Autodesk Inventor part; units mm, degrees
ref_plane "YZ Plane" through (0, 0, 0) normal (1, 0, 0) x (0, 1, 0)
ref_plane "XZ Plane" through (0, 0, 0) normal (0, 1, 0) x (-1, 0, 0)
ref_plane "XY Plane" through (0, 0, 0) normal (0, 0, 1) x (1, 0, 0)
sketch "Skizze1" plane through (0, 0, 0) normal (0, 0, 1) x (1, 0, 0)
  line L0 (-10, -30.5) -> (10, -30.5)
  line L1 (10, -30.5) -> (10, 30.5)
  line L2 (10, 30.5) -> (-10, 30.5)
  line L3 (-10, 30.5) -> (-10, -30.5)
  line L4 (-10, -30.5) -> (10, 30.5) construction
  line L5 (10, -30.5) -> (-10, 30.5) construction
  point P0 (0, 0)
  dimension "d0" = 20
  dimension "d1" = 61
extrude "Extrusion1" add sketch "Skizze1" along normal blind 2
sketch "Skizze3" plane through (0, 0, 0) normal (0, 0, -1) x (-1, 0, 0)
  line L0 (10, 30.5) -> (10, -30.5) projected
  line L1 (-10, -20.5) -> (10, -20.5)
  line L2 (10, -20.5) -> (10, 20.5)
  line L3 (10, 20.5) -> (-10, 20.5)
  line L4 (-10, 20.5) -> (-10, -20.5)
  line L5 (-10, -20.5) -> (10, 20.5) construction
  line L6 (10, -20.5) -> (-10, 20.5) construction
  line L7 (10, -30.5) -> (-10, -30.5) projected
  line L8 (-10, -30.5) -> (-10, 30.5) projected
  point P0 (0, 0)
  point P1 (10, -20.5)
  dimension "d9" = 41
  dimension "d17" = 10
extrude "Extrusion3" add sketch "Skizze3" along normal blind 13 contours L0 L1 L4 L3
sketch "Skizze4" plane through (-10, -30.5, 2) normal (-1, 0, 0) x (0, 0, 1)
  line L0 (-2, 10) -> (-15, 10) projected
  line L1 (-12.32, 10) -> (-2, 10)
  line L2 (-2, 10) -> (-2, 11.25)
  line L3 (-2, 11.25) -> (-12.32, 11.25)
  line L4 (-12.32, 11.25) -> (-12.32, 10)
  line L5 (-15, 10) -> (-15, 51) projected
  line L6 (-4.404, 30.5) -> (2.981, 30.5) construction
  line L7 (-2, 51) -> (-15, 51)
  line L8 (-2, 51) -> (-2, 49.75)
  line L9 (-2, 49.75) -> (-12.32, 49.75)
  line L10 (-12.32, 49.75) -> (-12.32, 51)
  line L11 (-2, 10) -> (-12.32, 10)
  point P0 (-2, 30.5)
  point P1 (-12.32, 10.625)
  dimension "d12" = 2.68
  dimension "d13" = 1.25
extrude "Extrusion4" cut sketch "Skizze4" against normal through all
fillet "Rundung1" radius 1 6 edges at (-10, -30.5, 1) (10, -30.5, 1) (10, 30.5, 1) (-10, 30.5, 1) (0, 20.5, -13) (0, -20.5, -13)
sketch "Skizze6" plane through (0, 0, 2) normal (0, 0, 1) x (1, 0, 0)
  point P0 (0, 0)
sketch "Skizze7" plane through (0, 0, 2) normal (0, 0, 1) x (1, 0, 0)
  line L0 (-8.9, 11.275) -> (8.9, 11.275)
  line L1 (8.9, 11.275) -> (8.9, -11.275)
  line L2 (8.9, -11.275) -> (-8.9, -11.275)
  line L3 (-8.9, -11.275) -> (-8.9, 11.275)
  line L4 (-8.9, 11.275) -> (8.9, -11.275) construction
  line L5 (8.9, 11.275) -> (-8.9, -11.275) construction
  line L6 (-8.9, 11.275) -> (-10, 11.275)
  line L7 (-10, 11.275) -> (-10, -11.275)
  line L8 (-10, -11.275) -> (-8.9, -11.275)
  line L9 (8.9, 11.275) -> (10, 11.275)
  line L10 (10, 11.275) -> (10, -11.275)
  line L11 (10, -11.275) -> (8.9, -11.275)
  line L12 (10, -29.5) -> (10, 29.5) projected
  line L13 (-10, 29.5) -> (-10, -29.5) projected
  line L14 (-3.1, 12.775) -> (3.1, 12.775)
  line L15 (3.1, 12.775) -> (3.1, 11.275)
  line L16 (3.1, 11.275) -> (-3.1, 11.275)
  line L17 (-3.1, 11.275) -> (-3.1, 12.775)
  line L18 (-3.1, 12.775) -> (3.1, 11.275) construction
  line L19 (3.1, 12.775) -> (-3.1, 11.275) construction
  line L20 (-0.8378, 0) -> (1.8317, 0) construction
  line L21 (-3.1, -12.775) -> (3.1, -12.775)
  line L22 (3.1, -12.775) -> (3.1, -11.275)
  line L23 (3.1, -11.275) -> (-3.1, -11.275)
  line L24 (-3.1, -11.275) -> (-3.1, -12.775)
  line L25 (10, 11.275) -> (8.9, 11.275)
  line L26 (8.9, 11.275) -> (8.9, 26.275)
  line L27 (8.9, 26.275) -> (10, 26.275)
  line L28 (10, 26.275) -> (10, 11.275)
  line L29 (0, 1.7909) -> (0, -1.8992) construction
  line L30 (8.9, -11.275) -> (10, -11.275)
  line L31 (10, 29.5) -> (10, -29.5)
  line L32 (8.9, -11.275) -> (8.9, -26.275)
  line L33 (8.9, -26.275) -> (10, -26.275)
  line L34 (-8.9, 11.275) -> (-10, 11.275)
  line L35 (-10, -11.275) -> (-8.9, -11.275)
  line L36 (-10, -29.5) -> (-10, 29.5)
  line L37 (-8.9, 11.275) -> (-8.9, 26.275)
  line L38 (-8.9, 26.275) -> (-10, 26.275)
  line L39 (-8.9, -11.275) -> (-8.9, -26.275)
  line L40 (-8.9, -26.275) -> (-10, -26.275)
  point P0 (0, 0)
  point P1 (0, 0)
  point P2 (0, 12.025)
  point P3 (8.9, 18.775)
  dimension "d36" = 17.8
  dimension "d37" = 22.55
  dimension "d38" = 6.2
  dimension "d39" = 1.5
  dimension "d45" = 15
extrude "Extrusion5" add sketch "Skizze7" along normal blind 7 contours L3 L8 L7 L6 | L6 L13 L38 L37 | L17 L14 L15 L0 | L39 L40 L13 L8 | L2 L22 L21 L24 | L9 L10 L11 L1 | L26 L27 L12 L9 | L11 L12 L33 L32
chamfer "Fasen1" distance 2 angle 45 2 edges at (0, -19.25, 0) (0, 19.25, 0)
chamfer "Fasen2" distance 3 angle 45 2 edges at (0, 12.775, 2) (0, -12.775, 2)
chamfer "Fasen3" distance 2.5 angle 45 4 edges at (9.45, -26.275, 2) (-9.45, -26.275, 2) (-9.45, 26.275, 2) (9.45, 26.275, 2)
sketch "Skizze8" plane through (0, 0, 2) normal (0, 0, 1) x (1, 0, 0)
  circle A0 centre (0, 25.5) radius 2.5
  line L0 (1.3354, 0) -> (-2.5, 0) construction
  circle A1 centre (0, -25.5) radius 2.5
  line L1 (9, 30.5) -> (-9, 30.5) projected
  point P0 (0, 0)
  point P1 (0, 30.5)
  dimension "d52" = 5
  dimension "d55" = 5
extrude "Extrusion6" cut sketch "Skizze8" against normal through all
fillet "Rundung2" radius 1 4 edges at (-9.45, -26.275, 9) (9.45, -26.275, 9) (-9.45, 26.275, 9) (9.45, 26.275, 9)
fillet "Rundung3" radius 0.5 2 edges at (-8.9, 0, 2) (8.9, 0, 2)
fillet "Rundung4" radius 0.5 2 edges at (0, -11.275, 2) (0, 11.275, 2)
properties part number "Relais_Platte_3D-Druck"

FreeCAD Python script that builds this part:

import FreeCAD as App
import Part
import Sketcher
from FreeCAD import Vector
Q = App.Units.Quantity


def edges_at(feature, points):
    """Names of the edges that pass closest to the given points."""
    edges = feature.Shape.Edges
    near = lambda p: min(range(len(edges)), key=lambda i: edges[i].distToShape(Part.Vertex(*p))[0])
    return sorted({f"Edge{near(p) + 1}" for p in points})

doc = App.newDocument("Part")
body = doc.addObject("PartDesign::Body", "Body")

# Sketch on XY plane
sketch1 = body.newObject("Sketcher::SketchObject", "Sketch")
sketch1.AttachmentSupport = (doc.getObject("XY_Plane"), [""])
sketch1.MapMode = "FlatFace"
sketch1.addGeometry(Part.LineSegment(Vector(-10, 30, 0), Vector(-10, -30, 0)), False)
sketch1.addGeometry(Part.LineSegment(Vector(-10, -30, 0), Vector(10, -30, 0)), False)
sketch1.addGeometry(Part.LineSegment(Vector(10, -30, 0), Vector(10, 30, 0)), False)
sketch1.addGeometry(Part.LineSegment(Vector(10, 30, 0), Vector(-10, 30, 0)), False)
sketch1.addConstraint(Sketcher.Constraint("Coincident", 0, 2, 1, 1))
sketch1.addConstraint(Sketcher.Constraint("Coincident", 1, 2, 2, 1))
sketch1.addConstraint(Sketcher.Constraint("Coincident", 2, 2, 3, 1))
sketch1.addConstraint(Sketcher.Constraint("Coincident", 3, 2, 0, 1))
sketch1.addConstraint(Sketcher.Constraint("Vertical", 0))
sketch1.addConstraint(Sketcher.Constraint("Horizontal", 1))
sketch1.addConstraint(Sketcher.Constraint("Vertical", 2))
sketch1.addConstraint(Sketcher.Constraint("Horizontal", 3))
sketch1.addConstraint(Sketcher.Constraint("Symmetric", 0, 2, 2, 2, -1, 1))
sketch1.addConstraint(Sketcher.Constraint("DistanceX", 1, 1, 1, 2, Q("20 mm")))
sketch1.addConstraint(Sketcher.Constraint("DistanceY", 0, 2, 0, 1, Q("61 mm")))
pad1 = body.newObject("PartDesign::Pad", "Pad")
pad1.Profile = sketch1
pad1.Length = 2

# Sketch on XY plane
sketch2 = body.newObject("Sketcher::SketchObject", "Sketch001")
sketch2.AttachmentSupport = (doc.getObject("XY_Plane"), [""])
sketch2.MapMode = "FlatFace"
sketch2.addGeometry(Part.LineSegment(Vector(-10, -20, 0), Vector(-10, 20, 0)), False)
sketch2.addGeometry(Part.LineSegment(Vector(-10, 20, 0), Vector(10, 20, 0)), False)
sketch2.addGeometry(Part.LineSegment(Vector(10, 20, 0), Vector(10, -20, 0)), False)
sketch2.addGeometry(Part.LineSegment(Vector(10, -20, 0), Vector(-10, -20, 0)), False)
sketch2.addConstraint(Sketcher.Constraint("Coincident", 0, 2, 1, 1))
sketch2.addConstraint(Sketcher.Constraint("Coincident", 1, 2, 2, 1))
sketch2.addConstraint(Sketcher.Constraint("Coincident", 2, 2, 3, 1))
sketch2.addConstraint(Sketcher.Constraint("Coincident", 3, 2, 0, 1))
sketch2.addConstraint(Sketcher.Constraint("Vertical", 0))
sketch2.addConstraint(Sketcher.Constraint("Horizontal", 1))
sketch2.addConstraint(Sketcher.Constraint("Vertical", 2))
sketch2.addConstraint(Sketcher.Constraint("Horizontal", 3))
sketch2.addConstraint(Sketcher.Constraint("Symmetric", 0, 2, 2, 2, -1, 1))
sketch2.addConstraint(Sketcher.Constraint("DistanceY", 0, 1, 0, 2, Q("41 mm")))
sketch2.addConstraint(Sketcher.Constraint("DistanceX", 0, 2, -1, 1, Q("10 mm")))
pad2 = body.newObject("PartDesign::Pad", "Pad001")
pad2.Profile = sketch2
pad2.Length = 13
pad2.Reversed = True

# Sketch on YZ plane
sketch3 = body.newObject("Sketcher::SketchObject", "Sketch002")
sketch3.AttachmentSupport = (doc.getObject("YZ_Plane"), [""])
sketch3.MapMode = "FlatFace"
sketch3.AttachmentOffset = App.Placement(Vector(0, 0, -10), App.Rotation())
sketch3.addGeometry(Part.LineSegment(Vector(20.5, 0, 0), Vector(20.5, -10.3, 0)), False)
sketch3.addGeometry(Part.LineSegment(Vector(20.5, -10.3, 0), Vector(19.2, -10.3, 0)), False)
sketch3.addGeometry(Part.LineSegment(Vector(19.2, -10.3, 0), Vector(19.2, 0, 0)), False)
sketch3.addGeometry(Part.LineSegment(Vector(19.2, 0, 0), Vector(20.5, 0, 0)), False)
sketch3.addGeometry(Part.LineSegment(Vector(-20.5, -10.3, 0), Vector(-20.5, 0, 0)), False)
sketch3.addGeometry(Part.LineSegment(Vector(-20.5, 0, 0), Vector(-19.2, 0, 0)), False)
sketch3.addGeometry(Part.LineSegment(Vector(-19.2, 0, 0), Vector(-19.2, -10.3, 0)), False)
sketch3.addGeometry(Part.LineSegment(Vector(-19.2, -10.3, 0), Vector(-20.5, -10.3, 0)), False)
sketch3.addConstraint(Sketcher.Constraint("Coincident", 0, 2, 1, 1))
sketch3.addConstraint(Sketcher.Constraint("Coincident", 1, 2, 2, 1))
sketch3.addConstraint(Sketcher.Constraint("Coincident", 2, 2, 3, 1))
sketch3.addConstraint(Sketcher.Constraint("Coincident", 3, 2, 0, 1))
sketch3.addConstraint(Sketcher.Constraint("Coincident", 4, 2, 5, 1))
sketch3.addConstraint(Sketcher.Constraint("Coincident", 5, 2, 6, 1))
sketch3.addConstraint(Sketcher.Constraint("Coincident", 6, 2, 7, 1))
sketch3.addConstraint(Sketcher.Constraint("Coincident", 7, 2, 4, 1))
sketch3.addConstraint(Sketcher.Constraint("Vertical", 0))
sketch3.addConstraint(Sketcher.Constraint("Horizontal", 1))
sketch3.addConstraint(Sketcher.Constraint("Vertical", 2))
sketch3.addConstraint(Sketcher.Constraint("Horizontal", 3))
sketch3.addConstraint(Sketcher.Constraint("Vertical", 4))
sketch3.addConstraint(Sketcher.Constraint("Horizontal", 5))
sketch3.addConstraint(Sketcher.Constraint("Vertical", 6))
sketch3.addConstraint(Sketcher.Constraint("Horizontal", 7))
sketch3.addConstraint(Sketcher.Constraint("Symmetric", 3, 2, 4, 2, -1, 1))
sketch3.addConstraint(Sketcher.Constraint("Symmetric", 2, 2, 5, 2, -2))
sketch3.addConstraint(Sketcher.Constraint("Horizontal", 1, 2, 6, 2))
sketch3.addConstraint(Sketcher.Constraint("DistanceX", 1, 2, 1, 1, Q("1.25 mm")))
sketch3.addConstraint(Sketcher.Constraint("DistanceX", 4, 2, 3, 2, Q("41 mm")))
sketch3.addConstraint(Sketcher.Constraint("DistanceY", 0, 2, 0, 1, Q("10.32 mm")))
pocket1 = body.newObject("PartDesign::Pocket", "Pocket")
pocket1.Profile = sketch3
pocket1.Type = "ThroughAll"
pocket1.Reversed = True
doc.recompute()

fillet = body.newObject("PartDesign::Fillet", "Fillet")
fillet.Base = (pocket1, edges_at(pocket1, [
    (-10, -30.5, 1),
    (10, -30.5, 1),
    (10, 30.5, 1),
    (-10, 30.5, 1),
    (0, 20.5, -13),
    (0, -20.5, -13),
]))
fillet.Radius = 1

# Sketch on XY plane
sketch4 = body.newObject("Sketcher::SketchObject", "Sketch003")
sketch4.AttachmentSupport = (doc.getObject("XY_Plane"), [""])
sketch4.MapMode = "FlatFace"
sketch4.AttachmentOffset = App.Placement(Vector(0, 0, 2), App.Rotation())
sketch4.addGeometry(Part.LineSegment(Vector(-8.9, 26.3, 0), Vector(-10, 26.3, 0)), False)
sketch4.addGeometry(Part.LineSegment(Vector(-10, 26.3, 0), Vector(-10, -26.3, 0)), False)
sketch4.addGeometry(Part.LineSegment(Vector(-10, -26.3, 0), Vector(-8.9, -26.3, 0)), False)
sketch4.addGeometry(Part.LineSegment(Vector(-8.9, -26.3, 0), Vector(-8.9, 26.3, 0)), False)
sketch4.addGeometry(Part.LineSegment(Vector(-3.1, 12.8, 0), Vector(-3.1, 11.3, 0)), False)
sketch4.addGeometry(Part.LineSegment(Vector(-3.1, 11.3, 0), Vector(3.1, 11.3, 0)), False)
sketch4.addGeometry(Part.LineSegment(Vector(3.1, 11.3, 0), Vector(3.1, 12.8, 0)), False)
sketch4.addGeometry(Part.LineSegment(Vector(3.1, 12.8, 0), Vector(-3.1, 12.8, 0)), False)
sketch4.addGeometry(Part.LineSegment(Vector(3.1, -11.3, 0), Vector(-3.1, -11.3, 0)), False)
sketch4.addGeometry(Part.LineSegment(Vector(-3.1, -11.3, 0), Vector(-3.1, -12.8, 0)), False)
sketch4.addGeometry(Part.LineSegment(Vector(-3.1, -12.8, 0), Vector(3.1, -12.8, 0)), False)
sketch4.addGeometry(Part.LineSegment(Vector(3.1, -12.8, 0), Vector(3.1, -11.3, 0)), False)
sketch4.addGeometry(Part.LineSegment(Vector(10, 26.3, 0), Vector(8.9, 26.3, 0)), False)
sketch4.addGeometry(Part.LineSegment(Vector(8.9, 26.3, 0), Vector(8.9, -26.3, 0)), False)
sketch4.addGeometry(Part.LineSegment(Vector(8.9, -26.3, 0), Vector(10, -26.3, 0)), False)
sketch4.addGeometry(Part.LineSegment(Vector(10, -26.3, 0), Vector(10, 26.3, 0)), False)
sketch4.addConstraint(Sketcher.Constraint("Coincident", 0, 2, 1, 1))
sketch4.addConstraint(Sketcher.Constraint("Coincident", 1, 2, 2, 1))
sketch4.addConstraint(Sketcher.Constraint("Coincident", 2, 2, 3, 1))
sketch4.addConstraint(Sketcher.Constraint("Coincident", 3, 2, 0, 1))
sketch4.addConstraint(Sketcher.Constraint("Coincident", 4, 2, 5, 1))
sketch4.addConstraint(Sketcher.Constraint("Coincident", 5, 2, 6, 1))
sketch4.addConstraint(Sketcher.Constraint("Coincident", 6, 2, 7, 1))
sketch4.addConstraint(Sketcher.Constraint("Coincident", 7, 2, 4, 1))
sketch4.addConstraint(Sketcher.Constraint("Coincident", 8, 2, 9, 1))
sketch4.addConstraint(Sketcher.Constraint("Coincident", 9, 2, 10, 1))
sketch4.addConstraint(Sketcher.Constraint("Coincident", 10, 2, 11, 1))
sketch4.addConstraint(Sketcher.Constraint("Coincident", 11, 2, 8, 1))
sketch4.addConstraint(Sketcher.Constraint("Coincident", 12, 2, 13, 1))
sketch4.addConstraint(Sketcher.Constraint("Coincident", 13, 2, 14, 1))
sketch4.addConstraint(Sketcher.Constraint("Coincident", 14, 2, 15, 1))
sketch4.addConstraint(Sketcher.Constraint("Coincident", 15, 2, 12, 1))
sketch4.addConstraint(Sketcher.Constraint("Horizontal", 0))
sketch4.addConstraint(Sketcher.Constraint("Vertical", 1))
sketch4.addConstraint(Sketcher.Constraint("Horizontal", 2))
sketch4.addConstraint(Sketcher.Constraint("Vertical", 3))
sketch4.addConstraint(Sketcher.Constraint("Vertical", 4))
sketch4.addConstraint(Sketcher.Constraint("Horizontal", 5))
sketch4.addConstraint(Sketcher.Constraint("Vertical", 6))
sketch4.addConstraint(Sketcher.Constraint("Horizontal", 7))
sketch4.addConstraint(Sketcher.Constraint("Horizontal", 8))
sketch4.addConstraint(Sketcher.Constraint("Vertical", 9))
sketch4.addConstraint(Sketcher.Constraint("Horizontal", 10))
sketch4.addConstraint(Sketcher.Constraint("Vertical", 11))
sketch4.addConstraint(Sketcher.Constraint("Horizontal", 12))
sketch4.addConstraint(Sketcher.Constraint("Vertical", 13))
sketch4.addConstraint(Sketcher.Constraint("Horizontal", 14))
sketch4.addConstraint(Sketcher.Constraint("Vertical", 15))
sketch4.addConstraint(Sketcher.Constraint("Symmetric", 5, 2, 8, 2, -1, 1))
sketch4.addConstraint(Sketcher.Constraint("Symmetric", 7, 2, 10, 2, -1, 1))
sketch4.addConstraint(Sketcher.Constraint("Symmetric", 2, 2, 12, 2, -1, 1))
sketch4.addConstraint(Sketcher.Constraint("Symmetric", 0, 2, 14, 2, -1, 1))
sketch4.addConstraint(Sketcher.Constraint("Horizontal", 3, 2, 12, 2))
sketch4.addConstraint(Sketcher.Constraint("Vertical", 7, 2, 8, 2))
sketch4.addConstraint(Sketcher.Constraint("DistanceX", 5, 1, 5, 2, Q("6.2 mm")))
sketch4.addConstraint(Sketcher.Constraint("DistanceY", 4, 2, 4, 1, Q("1.5 mm")))
sketch4.addConstraint(Sketcher.Constraint("DistanceY", 4, 2, 3, 2, Q("15 mm")))
sketch4.addConstraint(Sketcher.Constraint("DistanceX", 3, 2, 12, 2, Q("17.8 mm")))
sketch4.addConstraint(Sketcher.Constraint("DistanceY", 8, 2, 4, 2, Q("22.55 mm")))
sketch4.addConstraint(Sketcher.Constraint("DistanceX", 0, 2, 0, 1, Q("1.1 mm")))
pad3 = body.newObject("PartDesign::Pad", "Pad002")
pad3.Profile = sketch4
pad3.Length = 7
doc.recompute()

chamfer = body.newObject("PartDesign::Chamfer", "Chamfer")
chamfer.Base = (pad3, edges_at(pad3, [(0, -19.25, 0), (0, 19.25, 0)]))
chamfer.Size = 2
doc.recompute()

chamfer2 = body.newObject("PartDesign::Chamfer", "Chamfer001")
chamfer2.Base = (chamfer, edges_at(chamfer, [(0, 12.775, 2), (0, -12.775, 2)]))
chamfer2.Size = 3
doc.recompute()

chamfer3 = body.newObject("PartDesign::Chamfer", "Chamfer002")
chamfer3.Base = (chamfer2, edges_at(chamfer2, [
    (9.45, -26.275, 2),
    (-9.45, -26.275, 2),
    (-9.45, 26.275, 2),
    (9.45, 26.275, 2),
]))
chamfer3.Size = 2.5

# Sketch on XY plane
sketch5 = body.newObject("Sketcher::SketchObject", "Sketch004")
sketch5.AttachmentSupport = (doc.getObject("XY_Plane"), [""])
sketch5.MapMode = "FlatFace"
sketch5.AttachmentOffset = App.Placement(Vector(0, 0, 2), App.Rotation())
sketch5.addGeometry(Part.Circle(Vector(0, 25.5, 0), Vector(0, 0, 1), 2.5), False)
sketch5.addGeometry(Part.Circle(Vector(0, -25.5, 0), Vector(0, 0, 1), 2.5), False)
sketch5.addConstraint(Sketcher.Constraint("Equal", 0, 1))
sketch5.addConstraint(Sketcher.Constraint("Symmetric", 0, 3, 1, 3, -1, 1))
sketch5.addConstraint(Sketcher.Constraint("PointOnObject", 0, 3, -2))
sketch5.addConstraint(Sketcher.Constraint("Diameter", 0, Q("5 mm")))
sketch5.addConstraint(Sketcher.Constraint("DistanceY", 1, 3, 0, 3, Q("51 mm")))
pocket2 = body.newObject("PartDesign::Pocket", "Pocket001")
pocket2.Profile = sketch5
pocket2.Type = "ThroughAll"
doc.recompute()

fillet2 = body.newObject("PartDesign::Fillet", "Fillet001")
fillet2.Base = (pocket2, edges_at(pocket2, [
    (-9.45, -26.275, 9),
    (9.45, -26.275, 9),
    (-9.45, 26.275, 9),
    (9.45, 26.275, 9),
]))
fillet2.Radius = 1
doc.recompute()

fillet3 = body.newObject("PartDesign::Fillet", "Fillet002")
fillet3.Base = (fillet2, edges_at(fillet2, [(-8.9, 0, 2), (8.9, 0, 2)]))
fillet3.Radius = 0.5
doc.recompute()

fillet4 = body.newObject("PartDesign::Fillet", "Fillet003")
fillet4.Base = (fillet3, edges_at(fillet3, [(0, -11.275, 2), (0, 11.275, 2)]))
fillet4.Radius = 0.5

doc.recompute()
